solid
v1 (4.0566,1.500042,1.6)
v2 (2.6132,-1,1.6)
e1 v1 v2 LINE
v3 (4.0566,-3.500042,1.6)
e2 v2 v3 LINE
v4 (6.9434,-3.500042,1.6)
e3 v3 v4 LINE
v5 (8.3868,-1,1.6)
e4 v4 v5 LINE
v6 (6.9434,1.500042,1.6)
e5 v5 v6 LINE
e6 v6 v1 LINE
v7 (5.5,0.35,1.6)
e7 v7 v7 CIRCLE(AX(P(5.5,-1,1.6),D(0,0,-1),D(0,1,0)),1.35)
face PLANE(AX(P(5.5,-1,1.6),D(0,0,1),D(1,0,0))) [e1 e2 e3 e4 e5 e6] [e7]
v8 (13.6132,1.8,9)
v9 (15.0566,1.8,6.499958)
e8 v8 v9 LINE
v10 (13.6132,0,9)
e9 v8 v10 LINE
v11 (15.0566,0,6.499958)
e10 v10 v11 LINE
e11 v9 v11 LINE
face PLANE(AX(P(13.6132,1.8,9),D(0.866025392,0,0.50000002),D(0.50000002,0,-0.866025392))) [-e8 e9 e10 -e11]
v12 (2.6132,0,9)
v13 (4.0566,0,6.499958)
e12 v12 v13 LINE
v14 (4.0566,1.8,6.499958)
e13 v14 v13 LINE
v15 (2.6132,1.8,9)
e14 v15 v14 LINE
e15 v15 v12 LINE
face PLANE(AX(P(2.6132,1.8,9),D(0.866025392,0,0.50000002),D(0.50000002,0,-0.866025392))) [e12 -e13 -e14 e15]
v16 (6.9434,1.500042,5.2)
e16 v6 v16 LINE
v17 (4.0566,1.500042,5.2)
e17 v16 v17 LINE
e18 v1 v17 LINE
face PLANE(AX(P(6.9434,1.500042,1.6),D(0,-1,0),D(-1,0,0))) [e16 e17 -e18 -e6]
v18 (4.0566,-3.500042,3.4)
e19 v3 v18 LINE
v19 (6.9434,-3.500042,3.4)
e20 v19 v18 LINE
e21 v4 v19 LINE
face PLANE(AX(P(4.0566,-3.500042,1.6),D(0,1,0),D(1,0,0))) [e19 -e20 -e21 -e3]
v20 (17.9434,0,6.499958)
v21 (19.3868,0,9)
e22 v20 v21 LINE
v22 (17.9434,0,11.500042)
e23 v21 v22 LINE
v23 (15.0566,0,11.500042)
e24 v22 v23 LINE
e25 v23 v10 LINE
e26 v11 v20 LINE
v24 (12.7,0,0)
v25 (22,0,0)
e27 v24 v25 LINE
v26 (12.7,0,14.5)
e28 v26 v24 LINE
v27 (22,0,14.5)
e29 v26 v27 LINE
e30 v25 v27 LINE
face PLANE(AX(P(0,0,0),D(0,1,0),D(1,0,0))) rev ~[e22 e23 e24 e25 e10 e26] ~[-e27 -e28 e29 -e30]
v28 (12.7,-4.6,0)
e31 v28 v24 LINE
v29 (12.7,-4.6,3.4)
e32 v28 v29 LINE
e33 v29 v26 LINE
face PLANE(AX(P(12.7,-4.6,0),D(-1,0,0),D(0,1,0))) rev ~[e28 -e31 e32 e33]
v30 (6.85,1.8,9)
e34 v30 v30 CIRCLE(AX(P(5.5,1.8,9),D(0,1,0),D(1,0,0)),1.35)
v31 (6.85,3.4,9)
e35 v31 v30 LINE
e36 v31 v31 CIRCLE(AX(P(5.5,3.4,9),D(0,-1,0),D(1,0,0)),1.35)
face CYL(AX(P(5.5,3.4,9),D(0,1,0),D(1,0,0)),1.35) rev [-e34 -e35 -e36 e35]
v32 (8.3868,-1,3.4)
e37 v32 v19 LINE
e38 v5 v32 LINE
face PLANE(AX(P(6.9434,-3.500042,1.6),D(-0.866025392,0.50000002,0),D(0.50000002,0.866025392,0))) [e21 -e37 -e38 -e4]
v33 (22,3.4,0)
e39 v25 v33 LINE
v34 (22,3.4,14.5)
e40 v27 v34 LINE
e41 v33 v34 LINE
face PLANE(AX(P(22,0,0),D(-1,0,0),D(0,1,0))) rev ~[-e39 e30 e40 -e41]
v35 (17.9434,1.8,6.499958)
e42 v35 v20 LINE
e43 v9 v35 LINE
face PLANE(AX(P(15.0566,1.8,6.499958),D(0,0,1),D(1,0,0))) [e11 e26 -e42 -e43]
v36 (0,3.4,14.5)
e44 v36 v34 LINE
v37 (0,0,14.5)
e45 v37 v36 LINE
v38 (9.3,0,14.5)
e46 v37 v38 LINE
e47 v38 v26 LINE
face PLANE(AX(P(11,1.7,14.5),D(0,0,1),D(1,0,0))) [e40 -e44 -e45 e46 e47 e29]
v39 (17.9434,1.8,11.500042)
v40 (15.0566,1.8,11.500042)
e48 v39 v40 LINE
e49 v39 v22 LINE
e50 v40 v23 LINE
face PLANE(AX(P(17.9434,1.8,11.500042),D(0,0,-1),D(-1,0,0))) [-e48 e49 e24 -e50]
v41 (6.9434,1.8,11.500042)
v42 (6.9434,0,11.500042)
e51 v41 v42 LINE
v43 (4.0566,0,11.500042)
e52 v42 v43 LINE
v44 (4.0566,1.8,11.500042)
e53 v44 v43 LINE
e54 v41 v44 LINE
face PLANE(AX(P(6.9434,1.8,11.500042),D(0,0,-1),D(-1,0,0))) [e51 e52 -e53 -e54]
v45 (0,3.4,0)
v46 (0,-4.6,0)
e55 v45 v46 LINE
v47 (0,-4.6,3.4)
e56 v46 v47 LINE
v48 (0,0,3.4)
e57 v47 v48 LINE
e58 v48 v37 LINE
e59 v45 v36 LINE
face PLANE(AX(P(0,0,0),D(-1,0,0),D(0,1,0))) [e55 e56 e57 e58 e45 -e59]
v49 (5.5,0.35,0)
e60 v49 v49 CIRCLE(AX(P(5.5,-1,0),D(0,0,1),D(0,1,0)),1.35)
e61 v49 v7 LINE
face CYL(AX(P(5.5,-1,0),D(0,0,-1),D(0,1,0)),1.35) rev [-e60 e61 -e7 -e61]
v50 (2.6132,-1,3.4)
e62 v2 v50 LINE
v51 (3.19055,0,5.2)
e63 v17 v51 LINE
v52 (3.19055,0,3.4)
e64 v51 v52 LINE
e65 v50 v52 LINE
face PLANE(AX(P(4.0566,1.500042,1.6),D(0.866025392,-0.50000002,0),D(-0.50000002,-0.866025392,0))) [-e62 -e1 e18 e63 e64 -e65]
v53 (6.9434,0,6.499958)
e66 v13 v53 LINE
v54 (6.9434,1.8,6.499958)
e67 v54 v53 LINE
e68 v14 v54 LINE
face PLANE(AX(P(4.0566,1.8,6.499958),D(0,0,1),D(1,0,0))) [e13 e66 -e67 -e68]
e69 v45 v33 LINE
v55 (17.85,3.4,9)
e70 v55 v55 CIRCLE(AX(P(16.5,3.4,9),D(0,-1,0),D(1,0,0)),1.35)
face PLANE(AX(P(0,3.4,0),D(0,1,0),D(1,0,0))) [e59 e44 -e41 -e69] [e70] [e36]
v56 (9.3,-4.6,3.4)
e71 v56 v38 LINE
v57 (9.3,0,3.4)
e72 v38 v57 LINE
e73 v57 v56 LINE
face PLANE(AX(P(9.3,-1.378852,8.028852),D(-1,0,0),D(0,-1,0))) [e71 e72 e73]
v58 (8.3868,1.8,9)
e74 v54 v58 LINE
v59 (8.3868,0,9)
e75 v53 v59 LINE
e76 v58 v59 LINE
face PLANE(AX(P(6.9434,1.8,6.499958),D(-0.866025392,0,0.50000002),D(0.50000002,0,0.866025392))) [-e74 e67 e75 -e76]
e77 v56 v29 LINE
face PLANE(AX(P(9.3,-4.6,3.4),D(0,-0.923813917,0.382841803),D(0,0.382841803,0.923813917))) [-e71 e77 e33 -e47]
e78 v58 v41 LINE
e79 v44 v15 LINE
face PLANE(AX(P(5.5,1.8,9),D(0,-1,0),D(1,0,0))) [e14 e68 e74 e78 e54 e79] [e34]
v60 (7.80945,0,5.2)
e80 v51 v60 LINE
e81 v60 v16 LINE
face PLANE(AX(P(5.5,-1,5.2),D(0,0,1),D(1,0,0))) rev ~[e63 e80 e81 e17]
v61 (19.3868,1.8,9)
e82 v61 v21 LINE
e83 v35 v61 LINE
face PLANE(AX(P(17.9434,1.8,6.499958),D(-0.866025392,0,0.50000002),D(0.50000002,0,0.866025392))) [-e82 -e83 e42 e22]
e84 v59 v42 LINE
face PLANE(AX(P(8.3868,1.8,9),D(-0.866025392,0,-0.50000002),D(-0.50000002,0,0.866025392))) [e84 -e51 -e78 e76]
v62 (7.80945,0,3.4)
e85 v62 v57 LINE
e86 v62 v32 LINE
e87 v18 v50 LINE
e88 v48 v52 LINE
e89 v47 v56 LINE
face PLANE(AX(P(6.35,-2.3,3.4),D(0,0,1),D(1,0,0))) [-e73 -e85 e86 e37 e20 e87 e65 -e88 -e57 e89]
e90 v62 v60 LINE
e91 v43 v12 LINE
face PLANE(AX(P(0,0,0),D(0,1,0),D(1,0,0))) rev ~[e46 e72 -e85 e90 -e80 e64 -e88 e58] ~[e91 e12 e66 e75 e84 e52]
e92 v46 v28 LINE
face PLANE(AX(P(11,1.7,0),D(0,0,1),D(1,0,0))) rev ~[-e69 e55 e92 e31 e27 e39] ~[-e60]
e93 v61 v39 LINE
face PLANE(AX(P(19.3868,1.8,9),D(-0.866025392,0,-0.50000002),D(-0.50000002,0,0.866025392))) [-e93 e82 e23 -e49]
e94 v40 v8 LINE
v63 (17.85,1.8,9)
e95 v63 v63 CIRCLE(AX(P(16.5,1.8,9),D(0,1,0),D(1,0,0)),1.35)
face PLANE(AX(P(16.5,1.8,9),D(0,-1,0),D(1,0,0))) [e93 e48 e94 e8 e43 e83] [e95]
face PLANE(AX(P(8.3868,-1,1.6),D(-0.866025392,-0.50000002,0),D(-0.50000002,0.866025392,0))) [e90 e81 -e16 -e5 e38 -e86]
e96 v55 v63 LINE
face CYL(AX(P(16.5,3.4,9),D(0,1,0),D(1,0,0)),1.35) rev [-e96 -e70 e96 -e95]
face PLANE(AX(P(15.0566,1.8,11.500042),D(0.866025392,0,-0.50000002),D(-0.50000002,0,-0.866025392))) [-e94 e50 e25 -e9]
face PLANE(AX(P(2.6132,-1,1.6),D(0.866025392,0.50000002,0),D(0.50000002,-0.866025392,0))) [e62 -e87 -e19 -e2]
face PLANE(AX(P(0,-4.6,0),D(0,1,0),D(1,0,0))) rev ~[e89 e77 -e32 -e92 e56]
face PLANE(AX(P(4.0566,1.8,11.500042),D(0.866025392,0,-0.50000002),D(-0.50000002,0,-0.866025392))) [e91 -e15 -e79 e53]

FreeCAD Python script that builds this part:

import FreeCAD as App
import Part
import Sketcher

V = App.Vector
Q = App.Units.Quantity

doc = App.newDocument("Part")
params = doc.addObject("Spreadsheet::Sheet", "Params")
for row, (alias, value) in enumerate([
    ("pad1_length", "3.6 mm"),
    ("sketch2_diameter", "2.7 mm"),
    ("pad2_length", "3.4 mm"),
    ("pad3_length", "1.8 mm"),
    ("sketch4_diameter", "2.7 mm"),
    ("pad4_length", "3.4 mm"),
    ("pad5_length", "1.8 mm"),
    ("sketch6_diameter", "2.7 mm"),
    ("pad6_length", "3.4 mm"),
    ("sketch7_width", "22 mm"),
    ("sketch7_height", "3.4 mm"),
    ("pad7_length", "14.5 mm"),
    ("sketch8_width", "12.7 mm"),
    ("sketch8_height", "4.6 mm"),
    ("pad8_length", "3.4 mm"),
    ("sketch9_width", "4.6 mm"),
    ("sketch9_height", "11.1 mm"),
    ("pad9_length", "3.4 mm"),
], start=1):
    params.set(f"A{row}", alias)
    params.set(f"B{row}", "=" + value)
    params.setAlias(f"B{row}", alias)

body = doc.addObject("PartDesign::Body", "Body")

sketch1 = body.newObject("Sketcher::SketchObject", "Sketch")
sketch1.AttachmentSupport = (doc.getObject("XY_Plane"), [""])
sketch1.MapMode = "FlatFace"
sketch1.AttachmentOffset = App.Placement(V(0, 0, 1.6), App.Rotation())
sketch1.addGeometry(Part.LineSegment(V(8.4, -1, 0), V(6.9, 1.5, 0)), False)
sketch1.addGeometry(Part.LineSegment(V(6.9, 1.5, 0), V(4.1, 1.5, 0)), False)
sketch1.addGeometry(Part.LineSegment(V(4.1, 1.5, 0), V(2.6, -1, 0)), False)
sketch1.addGeometry(Part.LineSegment(V(2.6, -1, 0), V(4.1, -3.5, 0)), False)
sketch1.addGeometry(Part.LineSegment(V(4.1, -3.5, 0), V(6.9, -3.5, 0)), False)
sketch1.addGeometry(Part.LineSegment(V(6.9, -3.5, 0), V(8.4, -1, 0)), False)
sketch1.addConstraint(Sketcher.Constraint("Coincident", 0, 2, 1, 1))
sketch1.addConstraint(Sketcher.Constraint("Coincident", 1, 2, 2, 1))
sketch1.addConstraint(Sketcher.Constraint("Coincident", 2, 2, 3, 1))
sketch1.addConstraint(Sketcher.Constraint("Coincident", 3, 2, 4, 1))
sketch1.addConstraint(Sketcher.Constraint("Coincident", 4, 2, 5, 1))
sketch1.addConstraint(Sketcher.Constraint("Coincident", 5, 2, 0, 1))
sketch1.addConstraint(Sketcher.Constraint("Horizontal", 1))
sketch1.addConstraint(Sketcher.Constraint("Horizontal", 4))
sketch1.addConstraint(Sketcher.Constraint("Parallel", 0, 3))
sketch1.addConstraint(Sketcher.Constraint("Parallel", 2, 5))
sketch1.addConstraint(Sketcher.Constraint("Horizontal", 2, 2, 5, 2))
sketch1.addConstraint(Sketcher.Constraint("Vertical", 1, 2, 3, 2))
sketch1.addConstraint(Sketcher.Constraint("Vertical", 0, 2, 4, 2))
sketch1.addConstraint(Sketcher.Constraint("Angle", 0, Q("120.000001 deg")))
sketch1.addConstraint(Sketcher.Constraint("DistanceY", 2, 2, -1, 1, Q("1 mm")))
sketch1.addConstraint(Sketcher.Constraint("DistanceX", 1, 2, 1, 1, Q("2.8868 mm")))
sketch1.addConstraint(Sketcher.Constraint("Distance", 0, Q("2.8868 mm")))
sketch1.addConstraint(Sketcher.Constraint("DistanceX", -1, 1, 0, 2, Q("6.9434 mm")))
pad1 = body.newObject("PartDesign::Pad", "Pad")
pad1.Profile = sketch1
pad1.setExpression("Length", "Params.pad1_length")
body2 = doc.addObject("PartDesign::Body", "Body001")

sketch2 = body2.newObject("Sketcher::SketchObject", "Sketch001")
sketch2.AttachmentSupport = (doc.getObject("XY_Plane001"), [""])
sketch2.MapMode = "FlatFace"
sketch2.addGeometry(Part.Circle(V(5.5, -1, 0), V(0, 0, 1), 1.4), False)
sketch2.addConstraint(Sketcher.Constraint("Diameter", 0, Q("2.7 mm")))
sketch2.addConstraint(Sketcher.Constraint("DistanceY", 0, 3, -1, 1, Q("1 mm")))
sketch2.addConstraint(Sketcher.Constraint("DistanceX", -1, 1, 0, 3, Q("5.5 mm")))
sketch2.setExpression("Constraints[0]", "Params.sketch2_diameter")
pad2 = body2.newObject("PartDesign::Pad", "Pad001")
pad2.Profile = sketch2
pad2.setExpression("Length", "Params.pad2_length")
doc.recompute()

boolean = body2.newObject("PartDesign::Boolean", "Boolean")
boolean.Type = "Fuse"
boolean.addObjects([body])
body3 = doc.addObject("PartDesign::Body", "Body002")

sketch3 = body3.newObject("Sketcher::SketchObject", "Sketch002")
sketch3.AttachmentSupport = (doc.getObject("XZ_Plane002"), [""])
sketch3.MapMode = "FlatFace"
sketch3.AttachmentOffset = App.Placement(V(0, 0, -1.8), App.Rotation())
sketch3.addGeometry(Part.LineSegment(V(19.4, 9, 0), V(17.9, 11.5, 0)), False)
sketch3.addGeometry(Part.LineSegment(V(17.9, 11.5, 0), V(15.1, 11.5, 0)), False)
sketch3.addGeometry(Part.LineSegment(V(15.1, 11.5, 0), V(13.6, 9, 0)), False)
sketch3.addGeometry(Part.LineSegment(V(13.6, 9, 0), V(15.1, 6.5, 0)), False)
sketch3.addGeometry(Part.LineSegment(V(15.1, 6.5, 0), V(17.9, 6.5, 0)), False)
sketch3.addGeometry(Part.LineSegment(V(17.9, 6.5, 0), V(19.4, 9, 0)), False)
sketch3.addConstraint(Sketcher.Constraint("Coincident", 0, 2, 1, 1))
sketch3.addConstraint(Sketcher.Constraint("Coincident", 1, 2, 2, 1))
sketch3.addConstraint(Sketcher.Constraint("Coincident", 2, 2, 3, 1))
sketch3.addConstraint(Sketcher.Constraint("Coincident", 3, 2, 4, 1))
sketch3.addConstraint(Sketcher.Constraint("Coincident", 4, 2, 5, 1))
sketch3.addConstraint(Sketcher.Constraint("Coincident", 5, 2, 0, 1))
sketch3.addConstraint(Sketcher.Constraint("Horizontal", 1))
sketch3.addConstraint(Sketcher.Constraint("Horizontal", 4))
sketch3.addConstraint(Sketcher.Constraint("Parallel", 0, 3))
sketch3.addConstraint(Sketcher.Constraint("Parallel", 2, 5))
sketch3.addConstraint(Sketcher.Constraint("Horizontal", 2, 2, 5, 2))
sketch3.addConstraint(Sketcher.Constraint("Vertical", 1, 2, 3, 2))
sketch3.addConstraint(Sketcher.Constraint("Vertical", 0, 2, 4, 2))
sketch3.addConstraint(Sketcher.Constraint("Angle", 0, Q("120.000001 deg")))
sketch3.addConstraint(Sketcher.Constraint("DistanceY", -1, 1, 2, 2, Q("9 mm")))
sketch3.addConstraint(Sketcher.Constraint("DistanceX", 1, 2, 1, 1, Q("2.8868 mm")))
sketch3.addConstraint(Sketcher.Constraint("Distance", 0, Q("2.8868 mm")))
sketch3.addConstraint(Sketcher.Constraint("DistanceX", -1, 1, 0, 2, Q("17.9434 mm")))
pad3 = body3.newObject("PartDesign::Pad", "Pad002")
pad3.Profile = sketch3
pad3.setExpression("Length", "Params.pad3_length")
body4 = doc.addObject("PartDesign::Body", "Body003")

sketch4 = body4.newObject("Sketcher::SketchObject", "Sketch003")
sketch4.AttachmentSupport = (doc.getObject("XZ_Plane003"), [""])
sketch4.MapMode = "FlatFace"
sketch4.AttachmentOffset = App.Placement(V(0, 0, -3.4), App.Rotation())
sketch4.addGeometry(Part.Circle(V(16.5, 9, 0), V(0, 0, 1), 1.4), False)
sketch4.addConstraint(Sketcher.Constraint("Diameter", 0, Q("2.7 mm")))
sketch4.addConstraint(Sketcher.Constraint("DistanceY", -1, 1, 0, 3, Q("9 mm")))
sketch4.addConstraint(Sketcher.Constraint("DistanceX", -1, 1, 0, 3, Q("16.5 mm")))
sketch4.setExpression("Constraints[0]", "Params.sketch4_diameter")
pad4 = body4.newObject("PartDesign::Pad", "Pad003")
pad4.Profile = sketch4
pad4.setExpression("Length", "Params.pad4_length")
doc.recompute()

boolean2 = body4.newObject("PartDesign::Boolean", "Boolean001")
boolean2.Type = "Fuse"
boolean2.addObjects([body3])
body5 = doc.addObject("PartDesign::Body", "Body004")

sketch5 = body5.newObject("Sketcher::SketchObject", "Sketch004")
sketch5.AttachmentSupport = (doc.getObject("XZ_Plane004"), [""])
sketch5.MapMode = "FlatFace"
sketch5.AttachmentOffset = App.Placement(V(0, 0, -1.8), App.Rotation())
sketch5.addGeometry(Part.LineSegment(V(8.4, 9, 0), V(6.9, 11.5, 0)), False)
sketch5.addGeometry(Part.LineSegment(V(6.9, 11.5, 0), V(4.1, 11.5, 0)), False)
sketch5.addGeometry(Part.LineSegment(V(4.1, 11.5, 0), V(2.6, 9, 0)), False)
sketch5.addGeometry(Part.LineSegment(V(2.6, 9, 0), V(4.1, 6.5, 0)), False)
sketch5.addGeometry(Part.LineSegment(V(4.1, 6.5, 0), V(6.9, 6.5, 0)), False)
sketch5.addGeometry(Part.LineSegment(V(6.9, 6.5, 0), V(8.4, 9, 0)), False)
sketch5.addConstraint(Sketcher.Constraint("Coincident", 0, 2, 1, 1))
sketch5.addConstraint(Sketcher.Constraint("Coincident", 1, 2, 2, 1))
sketch5.addConstraint(Sketcher.Constraint("Coincident", 2, 2, 3, 1))
sketch5.addConstraint(Sketcher.Constraint("Coincident", 3, 2, 4, 1))
sketch5.addConstraint(Sketcher.Constraint("Coincident", 4, 2, 5, 1))
sketch5.addConstraint(Sketcher.Constraint("Coincident", 5, 2, 0, 1))
sketch5.addConstraint(Sketcher.Constraint("Horizontal", 1))
sketch5.addConstraint(Sketcher.Constraint("Horizontal", 4))
sketch5.addConstraint(Sketcher.Constraint("Parallel", 0, 3))
sketch5.addConstraint(Sketcher.Constraint("Parallel", 2, 5))
sketch5.addConstraint(Sketcher.Constraint("Horizontal", 2, 2, 5, 2))
sketch5.addConstraint(Sketcher.Constraint("Vertical", 1, 2, 3, 2))
sketch5.addConstraint(Sketcher.Constraint("Vertical", 0, 2, 4, 2))
sketch5.addConstraint(Sketcher.Constraint("Angle", 0, Q("120.000001 deg")))
sketch5.addConstraint(Sketcher.Constraint("DistanceY", -1, 1, 2, 2, Q("9 mm")))
sketch5.addConstraint(Sketcher.Constraint("DistanceX", 1, 2, 1, 1, Q("2.8868 mm")))
sketch5.addConstraint(Sketcher.Constraint("Distance", 0, Q("2.8868 mm")))
sketch5.addConstraint(Sketcher.Constraint("DistanceX", -1, 1, 0, 2, Q("6.9434 mm")))
pad5 = body5.newObject("PartDesign::Pad", "Pad004")
pad5.Profile = sketch5
pad5.setExpression("Length", "Params.pad5_length")
body6 = doc.addObject("PartDesign::Body", "Body005")

sketch6 = body6.newObject("Sketcher::SketchObject", "Sketch005")
sketch6.AttachmentSupport = (doc.getObject("XZ_Plane005"), [""])
sketch6.MapMode = "FlatFace"
sketch6.AttachmentOffset = App.Placement(V(0, 0, -3.4), App.Rotation())
sketch6.addGeometry(Part.Circle(V(5.5, 9, 0), V(0, 0, 1), 1.4), False)
sketch6.addConstraint(Sketcher.Constraint("Diameter", 0, Q("2.7 mm")))
sketch6.addConstraint(Sketcher.Constraint("DistanceY", -1, 1, 0, 3, Q("9 mm")))
sketch6.addConstraint(Sketcher.Constraint("DistanceX", -1, 1, 0, 3, Q("5.5 mm")))
sketch6.setExpression("Constraints[0]", "Params.sketch6_diameter")
pad6 = body6.newObject("PartDesign::Pad", "Pad005")
pad6.Profile = sketch6
pad6.setExpression("Length", "Params.pad6_length")
doc.recompute()

boolean3 = body6.newObject("PartDesign::Boolean", "Boolean002")
boolean3.Type = "Fuse"
boolean3.addObjects([body5])
body7 = doc.addObject("PartDesign::Body", "Body006")

sketch7 = body7.newObject("Sketcher::SketchObject", "Sketch006")
sketch7.AttachmentSupport = (doc.getObject("XY_Plane006"), [""])
sketch7.MapMode = "FlatFace"
sketch7.addGeometry(Part.LineSegment(V(0, 3.4, 0), V(0, 0, 0)), False)
sketch7.addGeometry(Part.LineSegment(V(0, 0, 0), V(22, 0, 0)), False)
sketch7.addGeometry(Part.LineSegment(V(22, 0, 0), V(22, 3.4, 0)), False)
sketch7.addGeometry(Part.LineSegment(V(22, 3.4, 0), V(0, 3.4, 0)), False)
sketch7.addConstraint(Sketcher.Constraint("Coincident", 0, 2, 1, 1))
sketch7.addConstraint(Sketcher.Constraint("Coincident", 1, 2, 2, 1))
sketch7.addConstraint(Sketcher.Constraint("Coincident", 2, 2, 3, 1))
sketch7.addConstraint(Sketcher.Constraint("Coincident", 3, 2, 0, 1))
sketch7.addConstraint(Sketcher.Constraint("Vertical", 0))
sketch7.addConstraint(Sketcher.Constraint("Horizontal", 1))
sketch7.addConstraint(Sketcher.Constraint("Vertical", 2))
sketch7.addConstraint(Sketcher.Constraint("Horizontal", 3))
sketch7.addConstraint(Sketcher.Constraint("Coincident", 0, 2, -1, 1))
sketch7.addConstraint(Sketcher.Constraint("DistanceX", 1, 1, 1, 2, Q("22 mm")))
sketch7.addConstraint(Sketcher.Constraint("DistanceY", 0, 2, 0, 1, Q("3.4 mm")))
sketch7.setExpression("Constraints[9]", "Params.sketch7_width")
sketch7.setExpression("Constraints[10]", "Params.sketch7_height")
pad7 = body7.newObject("PartDesign::Pad", "Pad006")
pad7.Profile = sketch7
pad7.setExpression("Length", "Params.pad7_length")
doc.recompute()

boolean4 = body7.newObject("PartDesign::Boolean", "Boolean003")
boolean4.Type = "Cut"
boolean4.addObjects([body6])
doc.recompute()

boolean5 = body7.newObject("PartDesign::Boolean", "Boolean004")
boolean5.Type = "Cut"
boolean5.addObjects([body4])
body8 = doc.addObject("PartDesign::Body", "Body007")

sketch8 = body8.newObject("Sketcher::SketchObject", "Sketch007")
sketch8.AttachmentSupport = (doc.getObject("XY_Plane007"), [""])
sketch8.MapMode = "FlatFace"
sketch8.addGeometry(Part.LineSegment(V(0, 0, 0), V(0, -4.6, 0)), False)
sketch8.addGeometry(Part.LineSegment(V(0, -4.6, 0), V(12.7, -4.6, 0)), False)
sketch8.addGeometry(Part.LineSegment(V(12.7, -4.6, 0), V(12.7, 0, 0)), False)
sketch8.addGeometry(Part.LineSegment(V(12.7, 0, 0), V(0, 0, 0)), False)
sketch8.addConstraint(Sketcher.Constraint("Coincident", 0, 2, 1, 1))
sketch8.addConstraint(Sketcher.Constraint("Coincident", 1, 2, 2, 1))
sketch8.addConstraint(Sketcher.Constraint("Coincident", 2, 2, 3, 1))
sketch8.addConstraint(Sketcher.Constraint("Coincident", 3, 2, 0, 1))
sketch8.addConstraint(Sketcher.Constraint("Vertical", 0))
sketch8.addConstraint(Sketcher.Constraint("Horizontal", 1))
sketch8.addConstraint(Sketcher.Constraint("Vertical", 2))
sketch8.addConstraint(Sketcher.Constraint("Horizontal", 3))
sketch8.addConstraint(Sketcher.Constraint("Coincident", 3, 2, -1, 1))
sketch8.addConstraint(Sketcher.Constraint("DistanceX", 1, 1, 1, 2, Q("12.7 mm")))
sketch8.addConstraint(Sketcher.Constraint("DistanceY", 0, 2, 0, 1, Q("4.6 mm")))
sketch8.setExpression("Constraints[9]", "Params.sketch8_width")
sketch8.setExpression("Constraints[10]", "Params.sketch8_height")
pad8 = body8.newObject("PartDesign::Pad", "Pad007")
pad8.Profile = sketch8
pad8.setExpression("Length", "Params.pad8_length")
doc.recompute()

boolean6 = body8.newObject("PartDesign::Boolean", "Boolean005")
boolean6.Type = "Fuse"
boolean6.addObjects([body7])
doc.recompute()

boolean7 = body8.newObject("PartDesign::Boolean", "Boolean006")
boolean7.Type = "Cut"
boolean7.addObjects([body2])
body9 = doc.addObject("PartDesign::Body", "Body008")

sketch9 = body9.newObject("Sketcher::SketchObject", "Sketch008")
sketch9.AttachmentSupport = (doc.getObject("YZ_Plane008"), [""])
sketch9.MapMode = "FlatFace"
sketch9.addGeometry(Part.LineSegment(V(0, 3.4, 0), V(0, 14.5, 0)), False)
sketch9.addGeometry(Part.LineSegment(V(0, 14.5, 0), V(-4.6, 3.4, 0)), False)
sketch9.addGeometry(Part.LineSegment(V(-4.6, 3.4, 0), V(0, 3.4, 0)), False)
sketch9.addConstraint(Sketcher.Constraint("Coincident", 0, 2, 1, 1))
sketch9.addConstraint(Sketcher.Constraint("Coincident", 1, 2, 2, 1))
sketch9.addConstraint(Sketcher.Constraint("Coincident", 2, 2, 0, 1))
sketch9.addConstraint(Sketcher.Constraint("Vertical", 0))
sketch9.addConstraint(Sketcher.Constraint("Horizontal", 2))
sketch9.addConstraint(Sketcher.Constraint("PointOnObject", 0, 2, -2))
sketch9.addConstraint(Sketcher.Constraint("DistanceX", 2, 1, 2, 2, Q("4.6 mm")))
sketch9.addConstraint(Sketcher.Constraint("DistanceY", 0, 1, 0, 2, Q("11.1 mm")))
sketch9.addConstraint(Sketcher.Constraint("DistanceY", -1, 1, 0, 2, Q("14.5 mm")))
sketch9.setExpression("Constraints[6]", "Params.sketch9_width")
sketch9.setExpression("Constraints[7]", "Params.sketch9_height")
pad9 = body9.newObject("PartDesign::Pad", "Pad008")
pad9.Profile = sketch9
pad9.setExpression("Length", "Params.pad9_length")
body10 = doc.addObject("PartDesign::Body", "Body009")
doc.recompute()

body9.Placement = App.Placement(V(9.3, 0, 0), App.Rotation(V(0, 0, 1), 0))
boolean8 = body10.newObject("PartDesign::Boolean", "Boolean007")
boolean8.Type = "Fuse"
boolean8.addObjects([body9])
doc.recompute()

boolean9 = body10.newObject("PartDesign::Boolean", "Boolean008")
boolean9.Type = "Fuse"
boolean9.addObjects([body8])

doc.recompute()
